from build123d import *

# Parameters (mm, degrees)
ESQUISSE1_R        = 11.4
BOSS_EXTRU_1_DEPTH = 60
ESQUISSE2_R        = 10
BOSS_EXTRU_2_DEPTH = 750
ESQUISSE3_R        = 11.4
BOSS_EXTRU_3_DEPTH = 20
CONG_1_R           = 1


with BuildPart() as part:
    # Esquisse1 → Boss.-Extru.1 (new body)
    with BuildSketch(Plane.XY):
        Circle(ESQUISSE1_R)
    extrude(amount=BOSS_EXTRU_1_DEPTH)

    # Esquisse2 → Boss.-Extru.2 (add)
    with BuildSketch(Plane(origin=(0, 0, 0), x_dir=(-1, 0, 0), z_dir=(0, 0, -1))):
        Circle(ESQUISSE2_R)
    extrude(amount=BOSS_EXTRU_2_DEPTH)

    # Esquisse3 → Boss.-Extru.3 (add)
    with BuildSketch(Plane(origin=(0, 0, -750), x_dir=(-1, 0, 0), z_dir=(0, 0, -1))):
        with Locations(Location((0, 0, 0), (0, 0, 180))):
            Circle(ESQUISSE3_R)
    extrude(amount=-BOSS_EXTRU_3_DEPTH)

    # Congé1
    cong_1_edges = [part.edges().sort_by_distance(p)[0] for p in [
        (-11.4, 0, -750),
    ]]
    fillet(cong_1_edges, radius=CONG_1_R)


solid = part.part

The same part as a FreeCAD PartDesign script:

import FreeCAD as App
import Part
import Sketcher

V = App.Vector
Q = App.Units.Quantity


def edges_at(feature, points):
    """Names of the edges that pass closest to the given points."""
    edges = feature.Shape.Edges
    near = lambda p: min(range(len(edges)), key=lambda i: edges[i].distToShape(Part.Vertex(*p))[0])
    return sorted({f"Edge{near(p) + 1}" for p in points})

doc = App.newDocument("Part")
body = doc.addObject("PartDesign::Body", "Body")

# Sketch on XY plane
sketch1 = body.newObject("Sketcher::SketchObject", "Sketch")
sketch1.AttachmentSupport = (doc.getObject("XY_Plane"), [""])
sketch1.MapMode = "FlatFace"
sketch1.addGeometry(Part.Circle(V(0, 0, 0), V(0, 0, 1), 11), False)
sketch1.addConstraint([
    Sketcher.Constraint("Coincident", 0, 3, -1, 1),
    Sketcher.Constraint("Diameter", 0, Q("22.8 mm")),
])
pad1 = body.newObject("PartDesign::Pad", "Pad")
pad1.Profile = sketch1
pad1.Length = 60

# Sketch on XY plane
sketch2 = body.newObject("Sketcher::SketchObject", "Sketch001")
sketch2.AttachmentSupport = (doc.getObject("XY_Plane"), [""])
sketch2.MapMode = "FlatFace"
sketch2.addGeometry(Part.Circle(V(0, 0, 0), V(0, 0, 1), 10), False)
sketch2.addConstraint([
    Sketcher.Constraint("Coincident", 0, 3, -1, 1),
    Sketcher.Constraint("Diameter", 0, Q("20 mm")),
])
pad2 = body.newObject("PartDesign::Pad", "Pad001")
pad2.Profile = sketch2
pad2.Length = 750
pad2.Reversed = True

# Sketch on XY plane
sketch3 = body.newObject("Sketcher::SketchObject", "Sketch002")
sketch3.AttachmentSupport = (doc.getObject("XY_Plane"), [""])
sketch3.MapMode = "FlatFace"
sketch3.AttachmentOffset = App.Placement(V(0, 0, -750), App.Rotation())
sketch3.addGeometry(Part.Circle(V(0, 0, 0), V(0, 0, 1), 11), False)
sketch3.addConstraint([
    Sketcher.Constraint("Coincident", 0, 3, -1, 1),
    Sketcher.Constraint("Diameter", 0, Q("22.8 mm")),
])
pad3 = body.newObject("PartDesign::Pad", "Pad002")
pad3.Profile = sketch3
pad3.Length = 20
doc.recompute()

fillet = body.newObject("PartDesign::Fillet", "Fillet")
fillet.Base = (pad3, edges_at(pad3, [(-11.4, 0, -750)]))
fillet.Radius = 1

doc.recompute()
